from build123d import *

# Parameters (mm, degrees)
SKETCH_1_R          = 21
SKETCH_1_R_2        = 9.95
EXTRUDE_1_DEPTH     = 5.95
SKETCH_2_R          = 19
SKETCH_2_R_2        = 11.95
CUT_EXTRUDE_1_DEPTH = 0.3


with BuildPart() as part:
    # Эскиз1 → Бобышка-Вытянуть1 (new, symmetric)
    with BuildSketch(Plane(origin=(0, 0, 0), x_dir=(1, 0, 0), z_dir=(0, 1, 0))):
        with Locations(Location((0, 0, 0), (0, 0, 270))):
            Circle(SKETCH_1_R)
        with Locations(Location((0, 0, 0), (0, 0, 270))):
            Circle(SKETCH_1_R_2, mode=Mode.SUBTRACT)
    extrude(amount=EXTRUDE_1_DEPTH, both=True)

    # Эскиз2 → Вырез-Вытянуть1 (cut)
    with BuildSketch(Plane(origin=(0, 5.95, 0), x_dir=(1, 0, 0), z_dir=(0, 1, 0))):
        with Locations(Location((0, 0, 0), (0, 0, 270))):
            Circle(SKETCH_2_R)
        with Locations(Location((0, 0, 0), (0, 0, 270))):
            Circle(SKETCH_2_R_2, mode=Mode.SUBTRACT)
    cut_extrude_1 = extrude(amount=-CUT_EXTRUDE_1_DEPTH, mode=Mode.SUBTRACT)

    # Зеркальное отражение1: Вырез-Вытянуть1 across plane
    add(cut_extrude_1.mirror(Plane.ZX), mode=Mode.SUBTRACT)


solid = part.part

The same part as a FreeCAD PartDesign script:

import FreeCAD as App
import Part
import Sketcher

doc = App.newDocument("Part")
body = doc.addObject("PartDesign::Body", "Body")

# Sketch on XZ plane
sketch1 = doc.addObject("Sketcher::SketchObject", "Sketch")
body.addObject(sketch1)
sketch1.AttachmentSupport = (doc.XZ_Plane, [""])
sketch1.MapMode = "FlatFace"
sketch1.addGeometry([
    Part.Circle(App.Vector(0, 0, 0), App.Vector(0, 0, 1), 21),
    Part.Circle(App.Vector(0, 0, 0), App.Vector(0, 0, 1), 10),
], False)
sketch1.addConstraint([
    Sketcher.Constraint("Coincident", 0, 3, -1, 1),
    Sketcher.Constraint("Coincident", 1, 3, -1, 1),
    Sketcher.Constraint("Diameter", 0, 42.0),
    Sketcher.Constraint("Diameter", 1, 19.9),
])
pad1 = doc.addObject("PartDesign::Pad", "Pad")
body.addObject(pad1)
pad1.Profile = sketch1
pad1.Length = 11.9
pad1.Midplane = True

# Sketch on XZ plane
sketch2 = doc.addObject("Sketcher::SketchObject", "Sketch001")
body.addObject(sketch2)
sketch2.AttachmentSupport = (doc.XZ_Plane, [""])
sketch2.MapMode = "FlatFace"
sketch2.AttachmentOffset = App.Placement(App.Vector(0, 0, -5.95), App.Rotation())
sketch2.addGeometry([
    Part.Circle(App.Vector(0, 0, 0), App.Vector(0, 0, 1), 19),
    Part.Circle(App.Vector(0, 0, 0), App.Vector(0, 0, 1), 12),
], False)
sketch2.addConstraint([
    Sketcher.Constraint("Coincident", 0, 3, -1, 1),
    Sketcher.Constraint("Coincident", 1, 3, -1, 1),
    Sketcher.Constraint("Diameter", 0, 38.0),
    Sketcher.Constraint("Diameter", 1, 23.9),
])
pocket1 = doc.addObject("PartDesign::Pocket", "Pocket")
body.addObject(pocket1)
pocket1.Profile = sketch2
pocket1.Length = 0.3
pocket1.Reversed = True
doc.recompute()

mirrored = doc.addObject("PartDesign::Mirrored", "Mirrored")
body.addObject(mirrored)
mirrored.Originals = [pocket1]
mirrored.MirrorPlane = (doc.XZ_Plane, [""])
body.Tip = mirrored

doc.recompute()
